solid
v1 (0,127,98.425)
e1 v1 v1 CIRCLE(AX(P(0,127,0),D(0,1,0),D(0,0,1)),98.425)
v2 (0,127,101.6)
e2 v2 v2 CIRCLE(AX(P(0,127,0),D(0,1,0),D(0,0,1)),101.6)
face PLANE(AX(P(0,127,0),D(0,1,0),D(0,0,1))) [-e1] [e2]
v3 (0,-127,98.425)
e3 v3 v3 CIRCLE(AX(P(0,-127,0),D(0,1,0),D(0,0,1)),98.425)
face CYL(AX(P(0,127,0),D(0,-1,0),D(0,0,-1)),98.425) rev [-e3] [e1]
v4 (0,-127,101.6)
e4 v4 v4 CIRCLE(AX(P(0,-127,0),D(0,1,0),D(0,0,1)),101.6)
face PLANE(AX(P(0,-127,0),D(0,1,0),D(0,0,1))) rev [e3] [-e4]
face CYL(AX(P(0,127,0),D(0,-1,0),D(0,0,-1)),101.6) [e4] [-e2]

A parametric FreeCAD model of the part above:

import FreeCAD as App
import Part
import Sketcher
from FreeCAD import Vector
Q = App.Units.Quantity

doc = App.newDocument("Part")
body = doc.addObject("PartDesign::Body", "Body")

sketch1 = body.newObject("Sketcher::SketchObject", "Sketch")
sketch1.AttachmentSupport = (doc.getObject("XZ_Plane"), [""])
sketch1.MapMode = "FlatFace"
sketch1.addGeometry(Part.Circle(Vector(0, 0, 0), Vector(0, 0, 1), 102), False)
sketch1.addGeometry(Part.Circle(Vector(0, 0, 0), Vector(0, 0, 1), 98), False)
sketch1.addConstraint(Sketcher.Constraint("Coincident", 0, 3, -1, 1))
sketch1.addConstraint(Sketcher.Constraint("Coincident", 1, 3, -1, 1))
sketch1.addConstraint(Sketcher.Constraint("Diameter", 0, Q("8 in")))
sketch1.addConstraint(Sketcher.Constraint("Diameter", 1, Q("7.75 in")))
pad1 = body.newObject("PartDesign::Pad", "Pad")
pad1.Profile = sketch1
pad1.Length = Q("10 in")
pad1.Midplane = True

doc.recompute()
